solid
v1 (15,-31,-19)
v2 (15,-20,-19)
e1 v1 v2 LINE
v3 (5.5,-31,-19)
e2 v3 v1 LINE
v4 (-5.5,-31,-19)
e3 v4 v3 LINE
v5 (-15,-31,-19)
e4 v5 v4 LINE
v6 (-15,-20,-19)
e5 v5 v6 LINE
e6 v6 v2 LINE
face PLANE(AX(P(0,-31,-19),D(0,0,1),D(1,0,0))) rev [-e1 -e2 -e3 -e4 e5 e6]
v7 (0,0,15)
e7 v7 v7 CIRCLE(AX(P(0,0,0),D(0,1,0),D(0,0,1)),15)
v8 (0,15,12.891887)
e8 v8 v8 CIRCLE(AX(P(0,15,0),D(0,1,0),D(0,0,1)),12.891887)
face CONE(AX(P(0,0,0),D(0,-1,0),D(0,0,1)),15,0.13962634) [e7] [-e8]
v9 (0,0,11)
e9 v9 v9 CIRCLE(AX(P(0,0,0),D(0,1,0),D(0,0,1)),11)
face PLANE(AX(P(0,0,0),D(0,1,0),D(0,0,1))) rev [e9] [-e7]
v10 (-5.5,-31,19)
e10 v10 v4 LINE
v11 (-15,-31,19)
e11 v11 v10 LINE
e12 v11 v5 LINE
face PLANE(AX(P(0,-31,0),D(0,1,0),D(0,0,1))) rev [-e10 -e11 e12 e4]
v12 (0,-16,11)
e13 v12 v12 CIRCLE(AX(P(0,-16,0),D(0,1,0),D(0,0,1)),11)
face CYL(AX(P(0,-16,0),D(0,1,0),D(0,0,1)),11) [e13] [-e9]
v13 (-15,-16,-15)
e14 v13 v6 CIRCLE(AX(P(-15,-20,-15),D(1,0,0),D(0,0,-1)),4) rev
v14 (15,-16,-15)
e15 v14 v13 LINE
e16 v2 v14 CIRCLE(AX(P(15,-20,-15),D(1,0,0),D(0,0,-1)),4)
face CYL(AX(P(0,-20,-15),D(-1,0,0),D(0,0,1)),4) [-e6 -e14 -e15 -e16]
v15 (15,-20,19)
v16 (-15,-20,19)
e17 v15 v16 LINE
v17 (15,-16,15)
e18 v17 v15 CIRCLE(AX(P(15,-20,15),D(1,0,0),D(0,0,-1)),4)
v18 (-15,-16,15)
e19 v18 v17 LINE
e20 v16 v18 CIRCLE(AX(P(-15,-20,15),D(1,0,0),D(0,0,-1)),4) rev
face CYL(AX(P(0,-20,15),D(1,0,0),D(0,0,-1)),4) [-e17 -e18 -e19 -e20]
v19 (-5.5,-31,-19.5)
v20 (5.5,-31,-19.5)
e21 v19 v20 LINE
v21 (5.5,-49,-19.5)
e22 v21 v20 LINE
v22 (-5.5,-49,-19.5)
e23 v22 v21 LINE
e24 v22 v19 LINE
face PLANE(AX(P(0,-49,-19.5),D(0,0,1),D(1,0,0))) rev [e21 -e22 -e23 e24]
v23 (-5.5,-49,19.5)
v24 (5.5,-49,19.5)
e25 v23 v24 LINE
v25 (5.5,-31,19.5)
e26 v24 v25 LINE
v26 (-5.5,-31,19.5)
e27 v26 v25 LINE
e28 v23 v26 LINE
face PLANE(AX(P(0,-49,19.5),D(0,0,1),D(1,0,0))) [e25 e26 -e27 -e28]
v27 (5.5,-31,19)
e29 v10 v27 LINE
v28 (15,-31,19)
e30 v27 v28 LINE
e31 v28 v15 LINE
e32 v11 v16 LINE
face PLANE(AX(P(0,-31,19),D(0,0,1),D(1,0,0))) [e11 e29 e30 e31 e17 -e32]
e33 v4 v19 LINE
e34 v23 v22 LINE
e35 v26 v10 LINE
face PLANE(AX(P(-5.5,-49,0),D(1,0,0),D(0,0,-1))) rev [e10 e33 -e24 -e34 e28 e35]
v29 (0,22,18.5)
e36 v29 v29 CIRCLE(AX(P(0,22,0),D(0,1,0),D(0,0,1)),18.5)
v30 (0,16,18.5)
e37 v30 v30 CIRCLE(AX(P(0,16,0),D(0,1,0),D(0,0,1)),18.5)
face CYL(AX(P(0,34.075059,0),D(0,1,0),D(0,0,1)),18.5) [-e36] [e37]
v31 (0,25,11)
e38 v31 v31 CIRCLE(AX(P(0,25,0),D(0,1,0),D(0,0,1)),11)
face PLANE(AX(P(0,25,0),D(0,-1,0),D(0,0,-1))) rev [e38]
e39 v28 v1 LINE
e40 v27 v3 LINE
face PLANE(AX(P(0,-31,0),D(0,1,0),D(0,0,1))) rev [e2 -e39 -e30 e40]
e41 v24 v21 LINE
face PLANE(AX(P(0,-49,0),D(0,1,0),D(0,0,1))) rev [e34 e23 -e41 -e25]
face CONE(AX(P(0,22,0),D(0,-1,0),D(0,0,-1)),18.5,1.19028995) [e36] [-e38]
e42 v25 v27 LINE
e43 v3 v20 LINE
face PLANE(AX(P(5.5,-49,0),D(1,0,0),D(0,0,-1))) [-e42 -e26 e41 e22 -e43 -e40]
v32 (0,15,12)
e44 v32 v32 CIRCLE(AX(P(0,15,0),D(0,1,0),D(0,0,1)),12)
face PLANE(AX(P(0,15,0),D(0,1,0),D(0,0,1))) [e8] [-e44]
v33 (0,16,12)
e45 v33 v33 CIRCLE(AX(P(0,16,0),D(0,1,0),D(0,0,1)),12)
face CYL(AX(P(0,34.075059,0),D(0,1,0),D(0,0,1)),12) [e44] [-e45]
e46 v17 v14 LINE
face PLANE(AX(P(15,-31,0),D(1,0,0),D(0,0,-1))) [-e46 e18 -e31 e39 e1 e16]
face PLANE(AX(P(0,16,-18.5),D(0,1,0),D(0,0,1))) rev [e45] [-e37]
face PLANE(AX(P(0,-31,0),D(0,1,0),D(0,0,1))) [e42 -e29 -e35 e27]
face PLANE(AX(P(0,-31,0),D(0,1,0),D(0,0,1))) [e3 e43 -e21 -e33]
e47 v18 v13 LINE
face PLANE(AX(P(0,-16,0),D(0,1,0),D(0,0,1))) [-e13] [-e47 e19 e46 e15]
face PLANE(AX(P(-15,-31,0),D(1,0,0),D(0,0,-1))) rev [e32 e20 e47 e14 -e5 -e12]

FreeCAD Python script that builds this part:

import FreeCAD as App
import Part
import Sketcher


def edges_at(feature, points):
    """Names of the edges that pass closest to the given points."""
    edges = feature.Shape.Edges
    near = lambda p: min(range(len(edges)), key=lambda i: edges[i].distToShape(Part.Vertex(*p))[0])
    return sorted({f"Edge{near(p) + 1}" for p in points})

doc = App.newDocument("Part")
params = doc.addObject("Spreadsheet::Sheet", "Params")
for row, (alias, value) in enumerate([
    ("sketch1_diameter", "30 mm"),
    ("pad1_length", "15 mm"),
    ("pad1_taper", "-8 deg"),
    ("sketch2_diameter", "22 mm"),
    ("pad2_length", "16 mm"),
    ("sketch3_width", "30 mm"),
    ("sketch3_height", "38 mm"),
    ("pad3_length", "15 mm"),
    ("sketch4_width", "11 mm"),
    ("sketch4_height", "39 mm"),
    ("pad4_length", "18 mm"),
    ("sketch5_width", "10 mm"),
    ("sketch5_width2", "1 mm"),
    ("sketch5_width3", "6 mm"),
    ("sketch5_height", "12 mm"),
    ("sketch5_height2", "11 mm"),
    ("revolution_angle", "360 deg"),
    ("fillet_radius", "4 mm"),
], start=1):
    params.set(f"A{row}", alias)
    params.set(f"B{row}", "=" + value)
    params.setAlias(f"B{row}", alias)

body = doc.addObject("PartDesign::Body", "Body")

sketch1 = doc.addObject("Sketcher::SketchObject", "Sketch")
body.addObject(sketch1)
sketch1.AttachmentSupport = (doc.XZ_Plane, [""])
sketch1.MapMode = "FlatFace"
sketch1.addGeometry(Part.Circle(App.Vector(0, 0, 0), App.Vector(0, 0, 1), 15), False)
sketch1.addConstraint([
    Sketcher.Constraint("Coincident", 0, 3, -1, 1),
    Sketcher.Constraint("Diameter", 0, 30.0),
])
sketch1.setExpression("Constraints[1]", "Params.sketch1_diameter")
pad1 = doc.addObject("PartDesign::Pad", "Pad")
body.addObject(pad1)
pad1.Profile = sketch1
pad1.setExpression("Length", "Params.pad1_length")
pad1.Reversed = True
pad1.setExpression("TaperAngle", "Params.pad1_taper")

sketch2 = doc.addObject("Sketcher::SketchObject", "Sketch001")
body.addObject(sketch2)
sketch2.AttachmentSupport = (doc.XZ_Plane, [""])
sketch2.MapMode = "FlatFace"
sketch2.addGeometry(Part.Circle(App.Vector(0, 0, 0), App.Vector(0, 0, 1), 11), False)
sketch2.addConstraint([
    Sketcher.Constraint("Coincident", 0, 3, -1, 1),
    Sketcher.Constraint("Diameter", 0, 22.0),
])
sketch2.setExpression("Constraints[1]", "Params.sketch2_diameter")
pad2 = doc.addObject("PartDesign::Pad", "Pad001")
body.addObject(pad2)
pad2.Profile = sketch2
pad2.setExpression("Length", "Params.pad2_length")

sketch3 = doc.addObject("Sketcher::SketchObject", "Sketch002")
body.addObject(sketch3)
sketch3.AttachmentSupport = (doc.XZ_Plane, [""])
sketch3.MapMode = "FlatFace"
sketch3.AttachmentOffset = App.Placement(App.Vector(0, 0, 16), App.Rotation())
sketch3.addGeometry([
    Part.LineSegment(App.Vector(-15, -19, 0), App.Vector(-15, 19, 0)),
    Part.LineSegment(App.Vector(-15, 19, 0), App.Vector(15, 19, 0)),
    Part.LineSegment(App.Vector(15, 19, 0), App.Vector(15, -19, 0)),
    Part.LineSegment(App.Vector(15, -19, 0), App.Vector(-15, -19, 0)),
], False)
sketch3.addConstraint([
    Sketcher.Constraint("Coincident", 0, 2, 1, 1),
    Sketcher.Constraint("Coincident", 1, 2, 2, 1),
    Sketcher.Constraint("Coincident", 2, 2, 3, 1),
    Sketcher.Constraint("Coincident", 3, 2, 0, 1),
    Sketcher.Constraint("Vertical", 0),
    Sketcher.Constraint("Horizontal", 1),
    Sketcher.Constraint("Vertical", 2),
    Sketcher.Constraint("Horizontal", 3),
    Sketcher.Constraint("Symmetric", 0, 2, 2, 2, -1, 1),
    Sketcher.Constraint("DistanceX", 1, 1, 1, 2, 30.0),
    Sketcher.Constraint("DistanceY", 0, 1, 0, 2, 38.0),
])
sketch3.setExpression("Constraints[9]", "Params.sketch3_width")
sketch3.setExpression("Constraints[10]", "Params.sketch3_height")
pad3 = doc.addObject("PartDesign::Pad", "Pad002")
body.addObject(pad3)
pad3.Profile = sketch3
pad3.setExpression("Length", "Params.pad3_length")

sketch4 = doc.addObject("Sketcher::SketchObject", "Sketch003")
body.addObject(sketch4)
sketch4.AttachmentSupport = (doc.XZ_Plane, [""])
sketch4.MapMode = "FlatFace"
sketch4.AttachmentOffset = App.Placement(App.Vector(0, 0, 31), App.Rotation())
sketch4.addGeometry([
    Part.LineSegment(App.Vector(-5.5, -19.5, 0), App.Vector(-5.5, 19.5, 0)),
    Part.LineSegment(App.Vector(-5.5, 19.5, 0), App.Vector(5.5, 19.5, 0)),
    Part.LineSegment(App.Vector(5.5, 19.5, 0), App.Vector(5.5, -19.5, 0)),
    Part.LineSegment(App.Vector(5.5, -19.5, 0), App.Vector(-5.5, -19.5, 0)),
], False)
sketch4.addConstraint([
    Sketcher.Constraint("Coincident", 0, 2, 1, 1),
    Sketcher.Constraint("Coincident", 1, 2, 2, 1),
    Sketcher.Constraint("Coincident", 2, 2, 3, 1),
    Sketcher.Constraint("Coincident", 3, 2, 0, 1),
    Sketcher.Constraint("Vertical", 0),
    Sketcher.Constraint("Horizontal", 1),
    Sketcher.Constraint("Vertical", 2),
    Sketcher.Constraint("Horizontal", 3),
    Sketcher.Constraint("Symmetric", 0, 2, 2, 2, -1, 1),
    Sketcher.Constraint("DistanceX", 1, 1, 1, 2, 11.0),
    Sketcher.Constraint("DistanceY", 0, 1, 0, 2, 39.0),
])
sketch4.setExpression("Constraints[9]", "Params.sketch4_width")
sketch4.setExpression("Constraints[10]", "Params.sketch4_height")
pad4 = doc.addObject("PartDesign::Pad", "Pad003")
body.addObject(pad4)
pad4.Profile = sketch4
pad4.setExpression("Length", "Params.pad4_length")

sketch5 = doc.addObject("Sketcher::SketchObject", "Sketch004")
body.addObject(sketch5)
sketch5.AttachmentSupport = (doc.YZ_Plane, [""])
sketch5.MapMode = "FlatFace"
sketch5.addGeometry([
    Part.LineSegment(App.Vector(25, 0, 0), App.Vector(15, 0, 0)),
    Part.LineSegment(App.Vector(15, 0, 0), App.Vector(15, -12, 0)),
    Part.LineSegment(App.Vector(15, -12, 0), App.Vector(16, -12, 0)),
    Part.LineSegment(App.Vector(16, -12, 0), App.Vector(16, -18.5, 0)),
    Part.LineSegment(App.Vector(16, -18.5, 0), App.Vector(22, -18.5, 0)),
    Part.LineSegment(App.Vector(22, -18.5, 0), App.Vector(25, -11, 0)),
    Part.LineSegment(App.Vector(25, -11, 0), App.Vector(25, 0, 0)),
], False)
sketch5.addConstraint([
    Sketcher.Constraint("Coincident", 0, 2, 1, 1),
    Sketcher.Constraint("Coincident", 1, 2, 2, 1),
    Sketcher.Constraint("Coincident", 2, 2, 3, 1),
    Sketcher.Constraint("Coincident", 3, 2, 4, 1),
    Sketcher.Constraint("Coincident", 4, 2, 5, 1),
    Sketcher.Constraint("Coincident", 5, 2, 6, 1),
    Sketcher.Constraint("Coincident", 6, 2, 0, 1),
    Sketcher.Constraint("Horizontal", 0),
    Sketcher.Constraint("Vertical", 1),
    Sketcher.Constraint("Horizontal", 2),
    Sketcher.Constraint("Vertical", 3),
    Sketcher.Constraint("Horizontal", 4),
    Sketcher.Constraint("Vertical", 6),
    Sketcher.Constraint("PointOnObject", 0, 2, -1),
    Sketcher.Constraint("DistanceX", 0, 2, 0, 1, 10.0),
    Sketcher.Constraint("DistanceX", 2, 1, 2, 2, 1.0),
    Sketcher.Constraint("DistanceX", 4, 1, 4, 2, 6.0),
    Sketcher.Constraint("DistanceY", 1, 2, 1, 1, 12.0),
    Sketcher.Constraint("DistanceY", 6, 1, 6, 2, 11.0),
    Sketcher.Constraint("DistanceY", 3, 2, 3, 1, 6.5),
    Sketcher.Constraint("DistanceX", -1, 1, 0, 2, 15.0),
])
sketch5.setExpression("Constraints[14]", "Params.sketch5_width")
sketch5.setExpression("Constraints[15]", "Params.sketch5_width2")
sketch5.setExpression("Constraints[16]", "Params.sketch5_width3")
sketch5.setExpression("Constraints[17]", "Params.sketch5_height")
sketch5.setExpression("Constraints[18]", "Params.sketch5_height2")
revolution = doc.addObject("PartDesign::Revolution", "Revolution")
body.addObject(revolution)
revolution.Profile = sketch5
revolution.ReferenceAxis = (sketch5, ["H_Axis"])
revolution.setExpression("Angle", "Params.revolution_angle")
doc.recompute()

fillet = doc.addObject("PartDesign::Fillet", "Fillet")
body.addObject(fillet)
fillet.Base = (revolution, edges_at(revolution, [(0, -16, -19), (0, -16, 19)]))
fillet.setExpression("Radius", "Params.fillet_radius")

doc.recompute()
